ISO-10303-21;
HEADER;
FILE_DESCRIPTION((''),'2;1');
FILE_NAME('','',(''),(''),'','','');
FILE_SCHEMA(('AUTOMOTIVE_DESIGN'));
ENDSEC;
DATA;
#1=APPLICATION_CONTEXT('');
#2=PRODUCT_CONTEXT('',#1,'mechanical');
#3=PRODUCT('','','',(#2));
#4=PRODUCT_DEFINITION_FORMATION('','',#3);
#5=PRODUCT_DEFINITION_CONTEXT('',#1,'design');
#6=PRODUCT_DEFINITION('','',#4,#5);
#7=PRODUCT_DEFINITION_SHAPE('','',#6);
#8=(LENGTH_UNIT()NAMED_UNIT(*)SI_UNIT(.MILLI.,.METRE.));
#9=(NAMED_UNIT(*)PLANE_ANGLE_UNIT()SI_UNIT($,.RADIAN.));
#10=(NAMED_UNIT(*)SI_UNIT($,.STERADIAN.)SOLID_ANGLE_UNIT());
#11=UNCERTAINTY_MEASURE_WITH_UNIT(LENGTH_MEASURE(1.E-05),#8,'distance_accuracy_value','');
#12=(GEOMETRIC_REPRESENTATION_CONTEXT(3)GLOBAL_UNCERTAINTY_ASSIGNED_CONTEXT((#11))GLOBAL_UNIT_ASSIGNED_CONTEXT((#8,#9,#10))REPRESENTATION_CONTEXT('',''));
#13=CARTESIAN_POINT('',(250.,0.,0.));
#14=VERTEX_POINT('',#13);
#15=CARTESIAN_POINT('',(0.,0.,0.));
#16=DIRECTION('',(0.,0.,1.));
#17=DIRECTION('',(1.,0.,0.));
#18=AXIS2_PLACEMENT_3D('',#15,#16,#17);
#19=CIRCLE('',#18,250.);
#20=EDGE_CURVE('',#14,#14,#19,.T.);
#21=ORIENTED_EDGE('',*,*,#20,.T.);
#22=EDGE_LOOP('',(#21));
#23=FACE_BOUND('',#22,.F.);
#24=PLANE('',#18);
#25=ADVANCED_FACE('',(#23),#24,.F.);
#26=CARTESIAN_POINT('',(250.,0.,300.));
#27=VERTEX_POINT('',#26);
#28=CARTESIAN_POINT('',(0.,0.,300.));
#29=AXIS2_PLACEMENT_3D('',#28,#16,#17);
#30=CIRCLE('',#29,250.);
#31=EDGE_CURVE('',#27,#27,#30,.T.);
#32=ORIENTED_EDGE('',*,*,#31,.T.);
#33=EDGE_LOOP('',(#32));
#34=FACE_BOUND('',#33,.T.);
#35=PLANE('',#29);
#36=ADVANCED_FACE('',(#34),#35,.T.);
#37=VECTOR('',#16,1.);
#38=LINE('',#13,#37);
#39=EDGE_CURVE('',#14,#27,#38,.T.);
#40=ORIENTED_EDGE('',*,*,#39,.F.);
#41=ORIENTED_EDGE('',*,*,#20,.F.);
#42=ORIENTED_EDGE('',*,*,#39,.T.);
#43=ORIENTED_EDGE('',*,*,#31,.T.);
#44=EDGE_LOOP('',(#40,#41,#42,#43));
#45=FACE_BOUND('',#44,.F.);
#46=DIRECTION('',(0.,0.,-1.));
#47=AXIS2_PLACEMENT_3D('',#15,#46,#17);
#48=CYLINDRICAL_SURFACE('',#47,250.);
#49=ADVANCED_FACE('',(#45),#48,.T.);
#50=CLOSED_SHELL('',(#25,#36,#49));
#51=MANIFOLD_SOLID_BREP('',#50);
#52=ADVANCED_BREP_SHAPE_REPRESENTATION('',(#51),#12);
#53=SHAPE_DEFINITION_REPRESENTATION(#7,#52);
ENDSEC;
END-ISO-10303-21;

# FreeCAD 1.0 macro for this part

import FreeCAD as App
import Part
import Sketcher

V = App.Vector

doc = App.newDocument("Part")
body = doc.addObject("PartDesign::Body", "Body")

sketch1 = body.newObject("Sketcher::SketchObject", "Sketch")
sketch1.AttachmentSupport = (doc.getObject("XY_Plane"), [""])
sketch1.MapMode = "FlatFace"
sketch1.addGeometry(Part.Circle(V(0, 0, 0), V(0, 0, 1), 250), False)
sketch1.addConstraint([
    Sketcher.Constraint("Coincident", 0, 3, -1, 1),
    Sketcher.Constraint("Diameter", 0, 500.0),
])
pad1 = body.newObject("PartDesign::Pad", "Pad")
pad1.Profile = sketch1
pad1.Length = 300

doc.recompute()
